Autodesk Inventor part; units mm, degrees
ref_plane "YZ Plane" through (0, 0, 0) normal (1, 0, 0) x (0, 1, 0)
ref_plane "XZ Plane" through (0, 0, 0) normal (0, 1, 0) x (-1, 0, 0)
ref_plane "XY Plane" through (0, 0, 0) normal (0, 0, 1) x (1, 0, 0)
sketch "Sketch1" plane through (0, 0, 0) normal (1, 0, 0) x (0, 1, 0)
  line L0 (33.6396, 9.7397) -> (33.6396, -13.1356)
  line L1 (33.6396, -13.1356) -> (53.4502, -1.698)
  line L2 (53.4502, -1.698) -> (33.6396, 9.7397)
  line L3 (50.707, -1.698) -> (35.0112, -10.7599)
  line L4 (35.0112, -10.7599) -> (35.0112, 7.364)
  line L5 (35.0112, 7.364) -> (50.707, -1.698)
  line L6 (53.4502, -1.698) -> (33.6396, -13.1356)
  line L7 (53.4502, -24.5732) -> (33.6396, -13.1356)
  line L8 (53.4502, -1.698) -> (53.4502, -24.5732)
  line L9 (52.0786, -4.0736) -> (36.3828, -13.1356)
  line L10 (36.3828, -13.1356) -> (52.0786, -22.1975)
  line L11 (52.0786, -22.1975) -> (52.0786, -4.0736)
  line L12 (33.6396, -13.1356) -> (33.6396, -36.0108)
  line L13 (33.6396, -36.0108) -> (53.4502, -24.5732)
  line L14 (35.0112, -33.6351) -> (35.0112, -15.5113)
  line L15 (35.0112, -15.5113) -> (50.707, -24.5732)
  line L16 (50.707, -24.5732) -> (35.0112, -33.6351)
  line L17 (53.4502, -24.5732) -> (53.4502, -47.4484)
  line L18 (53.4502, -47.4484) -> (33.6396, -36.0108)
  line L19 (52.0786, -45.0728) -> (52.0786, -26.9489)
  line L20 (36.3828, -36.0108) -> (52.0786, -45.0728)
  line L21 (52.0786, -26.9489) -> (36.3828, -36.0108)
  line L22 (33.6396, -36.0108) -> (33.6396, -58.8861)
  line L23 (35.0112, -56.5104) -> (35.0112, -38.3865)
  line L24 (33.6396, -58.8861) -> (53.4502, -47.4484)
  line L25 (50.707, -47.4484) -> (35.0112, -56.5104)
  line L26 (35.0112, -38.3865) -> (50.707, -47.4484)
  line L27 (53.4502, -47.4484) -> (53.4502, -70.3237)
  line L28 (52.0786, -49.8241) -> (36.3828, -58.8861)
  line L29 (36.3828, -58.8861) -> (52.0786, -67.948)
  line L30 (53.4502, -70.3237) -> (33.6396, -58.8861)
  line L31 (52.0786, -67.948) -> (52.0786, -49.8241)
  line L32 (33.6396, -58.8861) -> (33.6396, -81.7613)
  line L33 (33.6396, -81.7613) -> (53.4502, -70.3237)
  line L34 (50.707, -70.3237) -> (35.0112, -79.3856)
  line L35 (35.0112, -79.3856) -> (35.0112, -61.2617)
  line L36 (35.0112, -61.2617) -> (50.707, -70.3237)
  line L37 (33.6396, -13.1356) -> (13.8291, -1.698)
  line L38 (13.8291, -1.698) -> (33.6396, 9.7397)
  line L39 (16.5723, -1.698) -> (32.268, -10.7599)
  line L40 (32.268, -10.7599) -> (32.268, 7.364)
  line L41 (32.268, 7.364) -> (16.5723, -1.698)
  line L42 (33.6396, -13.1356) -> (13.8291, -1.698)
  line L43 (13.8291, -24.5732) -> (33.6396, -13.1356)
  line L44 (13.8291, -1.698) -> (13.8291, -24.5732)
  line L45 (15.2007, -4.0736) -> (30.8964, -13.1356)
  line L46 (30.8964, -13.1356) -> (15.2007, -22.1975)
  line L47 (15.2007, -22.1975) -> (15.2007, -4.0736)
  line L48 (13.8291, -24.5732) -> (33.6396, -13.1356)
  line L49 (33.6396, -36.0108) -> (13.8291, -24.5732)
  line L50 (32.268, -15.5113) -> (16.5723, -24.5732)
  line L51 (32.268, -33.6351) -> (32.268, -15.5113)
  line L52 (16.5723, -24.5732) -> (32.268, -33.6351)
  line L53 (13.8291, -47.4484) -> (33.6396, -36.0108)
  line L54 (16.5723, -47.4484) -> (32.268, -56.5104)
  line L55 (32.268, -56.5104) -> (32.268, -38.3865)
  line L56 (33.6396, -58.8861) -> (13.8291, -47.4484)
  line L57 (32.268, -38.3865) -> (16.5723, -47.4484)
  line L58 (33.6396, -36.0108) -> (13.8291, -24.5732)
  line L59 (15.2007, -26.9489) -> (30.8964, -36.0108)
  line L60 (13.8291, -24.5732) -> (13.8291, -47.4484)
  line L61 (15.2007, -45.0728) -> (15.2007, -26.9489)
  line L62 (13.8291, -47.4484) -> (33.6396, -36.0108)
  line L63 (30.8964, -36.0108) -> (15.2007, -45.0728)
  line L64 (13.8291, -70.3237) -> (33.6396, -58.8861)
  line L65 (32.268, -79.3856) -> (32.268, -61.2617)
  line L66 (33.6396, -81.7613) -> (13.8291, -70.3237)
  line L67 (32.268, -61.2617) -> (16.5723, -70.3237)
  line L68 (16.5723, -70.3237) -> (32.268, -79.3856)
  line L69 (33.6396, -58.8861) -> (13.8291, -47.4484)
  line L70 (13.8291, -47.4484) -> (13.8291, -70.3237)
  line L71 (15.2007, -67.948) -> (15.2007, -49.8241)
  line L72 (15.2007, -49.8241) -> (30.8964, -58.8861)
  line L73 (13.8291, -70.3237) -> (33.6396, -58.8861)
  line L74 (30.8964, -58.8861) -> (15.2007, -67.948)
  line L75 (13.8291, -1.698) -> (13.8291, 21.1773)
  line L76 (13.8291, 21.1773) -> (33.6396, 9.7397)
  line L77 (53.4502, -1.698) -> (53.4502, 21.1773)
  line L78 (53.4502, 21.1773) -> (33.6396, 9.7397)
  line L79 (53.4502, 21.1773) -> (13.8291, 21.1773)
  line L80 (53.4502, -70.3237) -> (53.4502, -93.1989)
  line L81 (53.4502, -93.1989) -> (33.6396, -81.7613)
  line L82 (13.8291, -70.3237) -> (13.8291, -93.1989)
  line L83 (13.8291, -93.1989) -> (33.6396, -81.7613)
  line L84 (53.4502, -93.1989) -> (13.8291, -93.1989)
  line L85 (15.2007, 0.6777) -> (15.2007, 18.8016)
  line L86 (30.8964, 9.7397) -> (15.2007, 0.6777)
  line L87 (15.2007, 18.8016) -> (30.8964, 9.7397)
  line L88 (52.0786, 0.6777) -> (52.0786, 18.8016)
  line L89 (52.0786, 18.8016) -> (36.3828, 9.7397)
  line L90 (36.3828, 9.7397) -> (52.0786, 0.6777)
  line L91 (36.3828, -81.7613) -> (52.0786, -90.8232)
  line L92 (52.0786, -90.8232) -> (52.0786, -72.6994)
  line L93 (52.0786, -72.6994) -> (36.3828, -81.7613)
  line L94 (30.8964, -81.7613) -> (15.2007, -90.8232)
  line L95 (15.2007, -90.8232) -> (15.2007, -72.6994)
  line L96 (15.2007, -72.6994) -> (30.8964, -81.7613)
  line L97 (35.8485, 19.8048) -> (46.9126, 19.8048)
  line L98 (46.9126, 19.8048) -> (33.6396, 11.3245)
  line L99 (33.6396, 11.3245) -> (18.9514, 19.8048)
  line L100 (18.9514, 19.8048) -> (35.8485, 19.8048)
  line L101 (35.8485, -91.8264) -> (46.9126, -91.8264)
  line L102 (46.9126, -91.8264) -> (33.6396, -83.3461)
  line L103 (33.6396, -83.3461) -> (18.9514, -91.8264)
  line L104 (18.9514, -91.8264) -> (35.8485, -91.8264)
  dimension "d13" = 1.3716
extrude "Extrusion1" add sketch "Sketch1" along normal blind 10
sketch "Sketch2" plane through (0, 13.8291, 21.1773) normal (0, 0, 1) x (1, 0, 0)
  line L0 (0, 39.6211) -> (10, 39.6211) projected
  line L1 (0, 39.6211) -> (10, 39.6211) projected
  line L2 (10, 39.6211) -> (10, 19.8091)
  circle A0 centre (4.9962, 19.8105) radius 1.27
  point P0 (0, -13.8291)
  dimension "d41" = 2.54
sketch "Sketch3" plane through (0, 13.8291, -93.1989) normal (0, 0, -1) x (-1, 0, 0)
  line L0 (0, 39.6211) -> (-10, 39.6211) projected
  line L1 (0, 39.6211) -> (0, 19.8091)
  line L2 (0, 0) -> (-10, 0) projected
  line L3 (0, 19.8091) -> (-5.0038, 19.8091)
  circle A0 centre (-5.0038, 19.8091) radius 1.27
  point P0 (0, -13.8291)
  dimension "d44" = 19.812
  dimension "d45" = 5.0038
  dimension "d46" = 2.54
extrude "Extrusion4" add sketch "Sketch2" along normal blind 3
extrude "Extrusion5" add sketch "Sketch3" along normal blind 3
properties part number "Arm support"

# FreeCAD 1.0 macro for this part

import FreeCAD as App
import Part
import Sketcher
from FreeCAD import Vector
Q = App.Units.Quantity

doc = App.newDocument("Part")
body = doc.addObject("PartDesign::Body", "Body")

# Sketch on YZ plane
sketch1 = body.newObject("Sketcher::SketchObject", "Sketch")
sketch1.AttachmentSupport = (doc.getObject("YZ_Plane"), [""])
sketch1.MapMode = "FlatFace"
sketch1.addGeometry([
    Part.LineSegment(Vector(53, 21, 0), Vector(14, 21, 0)),  # 0
    Part.LineSegment(Vector(14, 21, 0), Vector(14, -93, 0)),  # 1
    Part.LineSegment(Vector(14, -93, 0), Vector(53, -93, 0)),  # 2
    Part.LineSegment(Vector(53, -93, 0), Vector(53, 21, 0)),  # 3
    Part.LineSegment(Vector(35, 7, 0), Vector(51, -2, 0)),  # 4
    Part.LineSegment(Vector(51, -2, 0), Vector(35, -11, 0)),  # 5
    Part.LineSegment(Vector(35, -11, 0), Vector(35, 7, 0)),  # 6
    Part.LineSegment(Vector(52, 1, 0), Vector(36, 10, 0)),  # 7
    Part.LineSegment(Vector(36, 10, 0), Vector(52, 19, 0)),  # 8
    Part.LineSegment(Vector(52, 19, 0), Vector(52, 1, 0)),  # 9
    Part.LineSegment(Vector(52, -4, 0), Vector(52, -22, 0)),  # 10
    Part.LineSegment(Vector(52, -22, 0), Vector(36, -13, 0)),  # 11
    Part.LineSegment(Vector(36, -13, 0), Vector(52, -4, 0)),  # 12
    Part.LineSegment(Vector(17, -2, 0), Vector(32, 7, 0)),  # 13
    Part.LineSegment(Vector(32, 7, 0), Vector(32, -11, 0)),  # 14
    Part.LineSegment(Vector(32, -11, 0), Vector(17, -2, 0)),  # 15
    Part.LineSegment(Vector(47, 20, 0), Vector(34, 11, 0)),  # 16
    Part.LineSegment(Vector(34, 11, 0), Vector(19, 20, 0)),  # 17
    Part.LineSegment(Vector(19, 20, 0), Vector(47, 20, 0)),  # 18
    Part.LineSegment(Vector(35, -34, 0), Vector(35, -16, 0)),  # 19
    Part.LineSegment(Vector(35, -16, 0), Vector(51, -25, 0)),  # 20
    Part.LineSegment(Vector(51, -25, 0), Vector(35, -34, 0)),  # 21
    Part.LineSegment(Vector(15, -4, 0), Vector(31, -13, 0)),  # 22
    Part.LineSegment(Vector(31, -13, 0), Vector(15, -22, 0)),  # 23
    Part.LineSegment(Vector(15, -22, 0), Vector(15, -4, 0)),  # 24
    Part.LineSegment(Vector(15, 1, 0), Vector(15, 19, 0)),  # 25
    Part.LineSegment(Vector(15, 19, 0), Vector(31, 10, 0)),  # 26
    Part.LineSegment(Vector(31, 10, 0), Vector(15, 1, 0)),  # 27
    Part.LineSegment(Vector(52, -45, 0), Vector(36, -36, 0)),  # 28
    Part.LineSegment(Vector(36, -36, 0), Vector(52, -27, 0)),  # 29
    Part.LineSegment(Vector(52, -27, 0), Vector(52, -45, 0)),  # 30
    Part.LineSegment(Vector(32, -16, 0), Vector(32, -34, 0)),  # 31
    Part.LineSegment(Vector(32, -34, 0), Vector(17, -25, 0)),  # 32
    Part.LineSegment(Vector(17, -25, 0), Vector(32, -16, 0)),  # 33
    Part.LineSegment(Vector(35, -57, 0), Vector(35, -38, 0)),  # 34
    Part.LineSegment(Vector(35, -38, 0), Vector(51, -47, 0)),  # 35
    Part.LineSegment(Vector(51, -47, 0), Vector(35, -57, 0)),  # 36
    Part.LineSegment(Vector(15, -27, 0), Vector(31, -36, 0)),  # 37
    Part.LineSegment(Vector(31, -36, 0), Vector(15, -45, 0)),  # 38
    Part.LineSegment(Vector(15, -45, 0), Vector(15, -27, 0)),  # 39
    Part.LineSegment(Vector(52, -50, 0), Vector(52, -68, 0)),  # 40
    Part.LineSegment(Vector(52, -68, 0), Vector(36, -59, 0)),  # 41
    Part.LineSegment(Vector(36, -59, 0), Vector(52, -50, 0)),  # 42
    Part.LineSegment(Vector(17, -47, 0), Vector(32, -38, 0)),  # 43
    Part.LineSegment(Vector(32, -38, 0), Vector(32, -57, 0)),  # 44
    Part.LineSegment(Vector(32, -57, 0), Vector(17, -47, 0)),  # 45
    Part.LineSegment(Vector(51, -70, 0), Vector(35, -79, 0)),  # 46
    Part.LineSegment(Vector(35, -79, 0), Vector(35, -61, 0)),  # 47
    Part.LineSegment(Vector(35, -61, 0), Vector(51, -70, 0)),  # 48
    Part.LineSegment(Vector(15, -68, 0), Vector(15, -50, 0)),  # 49
    Part.LineSegment(Vector(15, -50, 0), Vector(31, -59, 0)),  # 50
    Part.LineSegment(Vector(31, -59, 0), Vector(15, -68, 0)),  # 51
    Part.LineSegment(Vector(36, -82, 0), Vector(52, -73, 0)),  # 52
    Part.LineSegment(Vector(52, -73, 0), Vector(52, -91, 0)),  # 53
    Part.LineSegment(Vector(52, -91, 0), Vector(36, -82, 0)),  # 54
    Part.LineSegment(Vector(32, -79, 0), Vector(17, -70, 0)),  # 55
    Part.LineSegment(Vector(17, -70, 0), Vector(32, -61, 0)),  # 56
    Part.LineSegment(Vector(32, -61, 0), Vector(32, -79, 0)),  # 57
    Part.LineSegment(Vector(19, -92, 0), Vector(34, -83, 0)),  # 58
    Part.LineSegment(Vector(34, -83, 0), Vector(47, -92, 0)),  # 59
    Part.LineSegment(Vector(47, -92, 0), Vector(19, -92, 0)),  # 60
    Part.LineSegment(Vector(15, -91, 0), Vector(15, -73, 0)),  # 61
    Part.LineSegment(Vector(15, -73, 0), Vector(31, -82, 0)),  # 62
    Part.LineSegment(Vector(31, -82, 0), Vector(15, -91, 0)),  # 63
], False)
sketch1.addConstraint([
    Sketcher.Constraint("Coincident", 0, 2, 1, 1),
    Sketcher.Constraint("Coincident", 1, 2, 2, 1),
    Sketcher.Constraint("Coincident", 2, 2, 3, 1),
    Sketcher.Constraint("Coincident", 3, 2, 0, 1),
    Sketcher.Constraint("Coincident", 4, 2, 5, 1),
    Sketcher.Constraint("Coincident", 5, 2, 6, 1),
    Sketcher.Constraint("Coincident", 6, 2, 4, 1),
    Sketcher.Constraint("Coincident", 7, 2, 8, 1),
    Sketcher.Constraint("Coincident", 8, 2, 9, 1),
    Sketcher.Constraint("Coincident", 9, 2, 7, 1),
    Sketcher.Constraint("Coincident", 10, 2, 11, 1),
    Sketcher.Constraint("Coincident", 11, 2, 12, 1),
    Sketcher.Constraint("Coincident", 12, 2, 10, 1),
    Sketcher.Constraint("Coincident", 13, 2, 14, 1),
    Sketcher.Constraint("Coincident", 14, 2, 15, 1),
    Sketcher.Constraint("Coincident", 15, 2, 13, 1),
    Sketcher.Constraint("Coincident", 16, 2, 17, 1),
    Sketcher.Constraint("Coincident", 17, 2, 18, 1),
    Sketcher.Constraint("Coincident", 18, 2, 16, 1),
    Sketcher.Constraint("Coincident", 19, 2, 20, 1),
    Sketcher.Constraint("Coincident", 20, 2, 21, 1),
    Sketcher.Constraint("Coincident", 21, 2, 19, 1),
    Sketcher.Constraint("Coincident", 22, 2, 23, 1),
    Sketcher.Constraint("Coincident", 23, 2, 24, 1),
    Sketcher.Constraint("Coincident", 24, 2, 22, 1),
    Sketcher.Constraint("Coincident", 25, 2, 26, 1),
    Sketcher.Constraint("Coincident", 26, 2, 27, 1),
    Sketcher.Constraint("Coincident", 27, 2, 25, 1),
    Sketcher.Constraint("Coincident", 28, 2, 29, 1),
    Sketcher.Constraint("Coincident", 29, 2, 30, 1),
    Sketcher.Constraint("Coincident", 30, 2, 28, 1),
    Sketcher.Constraint("Coincident", 31, 2, 32, 1),
    Sketcher.Constraint("Coincident", 32, 2, 33, 1),
    Sketcher.Constraint("Coincident", 33, 2, 31, 1),
    Sketcher.Constraint("Coincident", 34, 2, 35, 1),
    Sketcher.Constraint("Coincident", 35, 2, 36, 1),
    Sketcher.Constraint("Coincident", 36, 2, 34, 1),
    Sketcher.Constraint("Coincident", 37, 2, 38, 1),
    Sketcher.Constraint("Coincident", 38, 2, 39, 1),
    Sketcher.Constraint("Coincident", 39, 2, 37, 1),
    Sketcher.Constraint("Coincident", 40, 2, 41, 1),
    Sketcher.Constraint("Coincident", 41, 2, 42, 1),
    Sketcher.Constraint("Coincident", 42, 2, 40, 1),
    Sketcher.Constraint("Coincident", 43, 2, 44, 1),
    Sketcher.Constraint("Coincident", 44, 2, 45, 1),
    Sketcher.Constraint("Coincident", 45, 2, 43, 1),
    Sketcher.Constraint("Coincident", 46, 2, 47, 1),
    Sketcher.Constraint("Coincident", 47, 2, 48, 1),
    Sketcher.Constraint("Coincident", 48, 2, 46, 1),
    Sketcher.Constraint("Coincident", 49, 2, 50, 1),
    Sketcher.Constraint("Coincident", 50, 2, 51, 1),
    Sketcher.Constraint("Coincident", 51, 2, 49, 1),
    Sketcher.Constraint("Coincident", 52, 2, 53, 1),
    Sketcher.Constraint("Coincident", 53, 2, 54, 1),
    Sketcher.Constraint("Coincident", 54, 2, 52, 1),
    Sketcher.Constraint("Coincident", 55, 2, 56, 1),
    Sketcher.Constraint("Coincident", 56, 2, 57, 1),
    Sketcher.Constraint("Coincident", 57, 2, 55, 1),
    Sketcher.Constraint("Coincident", 58, 2, 59, 1),
    Sketcher.Constraint("Coincident", 59, 2, 60, 1),
    Sketcher.Constraint("Coincident", 60, 2, 58, 1),
    Sketcher.Constraint("Coincident", 61, 2, 62, 1),
    Sketcher.Constraint("Coincident", 62, 2, 63, 1),
    Sketcher.Constraint("Coincident", 63, 2, 61, 1),
    Sketcher.Constraint("Horizontal", 0),
    Sketcher.Constraint("Vertical", 1),
    Sketcher.Constraint("Horizontal", 2),
    Sketcher.Constraint("Vertical", 3),
    Sketcher.Constraint("Vertical", 6),
    Sketcher.Constraint("Vertical", 9),
    Sketcher.Constraint("Vertical", 10),
    Sketcher.Constraint("Vertical", 14),
    Sketcher.Constraint("Horizontal", 18),
    Sketcher.Constraint("Vertical", 19),
    Sketcher.Constraint("Vertical", 24),
    Sketcher.Constraint("Vertical", 25),
    Sketcher.Constraint("Vertical", 30),
    Sketcher.Constraint("Vertical", 31),
    Sketcher.Constraint("Vertical", 34),
    Sketcher.Constraint("Vertical", 39),
    Sketcher.Constraint("Vertical", 40),
    Sketcher.Constraint("Vertical", 44),
    Sketcher.Constraint("Vertical", 47),
    Sketcher.Constraint("Vertical", 49),
    Sketcher.Constraint("Vertical", 53),
    Sketcher.Constraint("Vertical", 57),
    Sketcher.Constraint("Horizontal", 60),
    Sketcher.Constraint("Vertical", 61),
    Sketcher.Constraint("Parallel", 4, 7),
    Sketcher.Constraint("Parallel", 5, 8),
    Sketcher.Constraint("Parallel", 7, 11),
    Sketcher.Constraint("Parallel", 8, 12),
    Sketcher.Constraint("Parallel", 12, 13),
    Sketcher.Constraint("Parallel", 11, 15),
    Sketcher.Constraint("Parallel", 15, 17),
    Sketcher.Constraint("Parallel", 17, 20),
    Sketcher.Constraint("Parallel", 13, 21),
    Sketcher.Constraint("Parallel", 20, 22),
    Sketcher.Constraint("Parallel", 21, 23),
    Sketcher.Constraint("Parallel", 22, 26),
    Sketcher.Constraint("Parallel", 23, 27),
    Sketcher.Constraint("Parallel", 26, 28),
    Sketcher.Constraint("Parallel", 27, 29),
    Sketcher.Constraint("Parallel", 28, 32),
    Sketcher.Constraint("Parallel", 29, 33),
    Sketcher.Constraint("Parallel", 32, 35),
    Sketcher.Constraint("Parallel", 33, 36),
    Sketcher.Constraint("Parallel", 35, 37),
    Sketcher.Constraint("Parallel", 36, 38),
    Sketcher.Constraint("Parallel", 37, 41),
    Sketcher.Constraint("Parallel", 38, 42),
    Sketcher.Constraint("Parallel", 42, 43),
    Sketcher.Constraint("Parallel", 41, 45),
    Sketcher.Constraint("Parallel", 43, 46),
    Sketcher.Constraint("Parallel", 45, 48),
    Sketcher.Constraint("Parallel", 48, 50),
    Sketcher.Constraint("Parallel", 46, 51),
    Sketcher.Constraint("Parallel", 51, 52),
    Sketcher.Constraint("Parallel", 50, 54),
    Sketcher.Constraint("Parallel", 54, 55),
    Sketcher.Constraint("Parallel", 52, 56),
    Sketcher.Constraint("Parallel", 56, 58),
    Sketcher.Constraint("Parallel", 55, 62),
    Sketcher.Constraint("Parallel", 58, 63),
    Sketcher.Constraint("Horizontal", 6, 2, 13, 2),
    Sketcher.Constraint("Horizontal", 5, 2, 14, 2),
    Sketcher.Constraint("Horizontal", 4, 2, 15, 2),
    Sketcher.Constraint("Horizontal", 11, 2, 22, 2),
    Sketcher.Constraint("Horizontal", 10, 2, 23, 2),
    Sketcher.Constraint("Horizontal", 8, 2, 25, 2),
    Sketcher.Constraint("Horizontal", 7, 2, 26, 2),
    Sketcher.Constraint("Horizontal", 21, 2, 31, 2),
    Sketcher.Constraint("Horizontal", 20, 2, 32, 2),
    Sketcher.Constraint("Horizontal", 28, 2, 37, 2),
    Sketcher.Constraint("Horizontal", 30, 2, 38, 2),
    Sketcher.Constraint("Horizontal", 34, 2, 43, 2),
    Sketcher.Constraint("Horizontal", 36, 2, 44, 2),
    Sketcher.Constraint("Horizontal", 42, 2, 49, 2),
    Sketcher.Constraint("Horizontal", 41, 2, 50, 2),
    Sketcher.Constraint("Horizontal", 48, 2, 55, 2),
    Sketcher.Constraint("Horizontal", 47, 2, 56, 2),
    Sketcher.Constraint("Horizontal", 52, 2, 61, 2),
    Sketcher.Constraint("Horizontal", 54, 2, 62, 2),
    Sketcher.Constraint("Vertical", 9, 2, 10, 2),
    Sketcher.Constraint("Vertical", 7, 2, 11, 2),
    Sketcher.Constraint("Vertical", 6, 2, 19, 2),
    Sketcher.Constraint("Vertical", 4, 2, 20, 2),
    Sketcher.Constraint("Vertical", 24, 2, 25, 2),
    Sketcher.Constraint("Vertical", 11, 2, 28, 2),
    Sketcher.Constraint("Vertical", 12, 2, 29, 2),
    Sketcher.Constraint("Vertical", 14, 2, 31, 2),
    Sketcher.Constraint("Vertical", 21, 2, 34, 2),
    Sketcher.Constraint("Vertical", 20, 2, 35, 2),
    Sketcher.Constraint("Vertical", 26, 2, 37, 2),
    Sketcher.Constraint("Vertical", 30, 2, 40, 2),
    Sketcher.Constraint("Vertical", 28, 2, 41, 2),
    Sketcher.Constraint("Vertical", 33, 2, 43, 2),
    Sketcher.Constraint("Vertical", 36, 2, 46, 2),
    Sketcher.Constraint("Vertical", 35, 2, 48, 2),
    Sketcher.Constraint("Vertical", 39, 2, 49, 2),
    Sketcher.Constraint("Vertical", 42, 2, 52, 2),
    Sketcher.Constraint("Vertical", 41, 2, 54, 2),
    Sketcher.Constraint("Vertical", 45, 2, 55, 2),
    Sketcher.Constraint("Vertical", 16, 2, 58, 2),
    Sketcher.Constraint("Vertical", 18, 2, 59, 2),
    Sketcher.Constraint("Vertical", 17, 2, 60, 2),
    Sketcher.Constraint("Vertical", 51, 2, 61, 2),
    Sketcher.Constraint("Equal", 6, 9),
    Sketcher.Constraint("Angle", 4, Q("-30 deg")),
    Sketcher.Constraint("DistanceY", 1, 2, 1, 1, Q("4.503 in")),
    Sketcher.Constraint("Distance", 16, Q("0.6201 in")),
    Sketcher.Constraint("DistanceX", 0, 2, 0, 1, 39.621),
    Sketcher.Constraint("DistanceX", 18, 1, 18, 2, 27.9612),
    Sketcher.Constraint("DistanceY", 6, 1, 6, 2, 18.124),
    Sketcher.Constraint("DistanceX", -1, 1, 5, 2, Q("1.3784 in")),
    Sketcher.Constraint("DistanceX", -1, 1, 7, 2, Q("1.4324 in")),
    Sketcher.Constraint("DistanceX", -1, 1, 13, 2, Q("1.2704 in")),
    Sketcher.Constraint("DistanceX", -1, 1, 16, 2, Q("1.3244 in")),
    Sketcher.Constraint("DistanceX", -1, 1, 22, 2, Q("1.2164 in")),
    Sketcher.Constraint("DistanceX", -1, 1, 0, 2, 13.829),
    Sketcher.Constraint("DistanceY", -1, 1, 0, 2, 21.1773),
    Sketcher.Constraint("DistanceY", 4, 2, -1, 1, 1.698),
    Sketcher.Constraint("DistanceY", -1, 1, 7, 2, 9.7397),
    Sketcher.Constraint("DistanceY", 10, 2, -1, 1, 22.1975),
    Sketcher.Constraint("DistanceY", -1, 1, 16, 2, 11.3245),
    Sketcher.Constraint("DistanceY", 19, 2, -1, 1, 15.5113),
    Sketcher.Constraint("DistanceY", 28, 2, -1, 1, 36.0108),
    Sketcher.Constraint("DistanceY", 34, 2, -1, 1, 38.3865),
    Sketcher.Constraint("DistanceY", 40, 2, -1, 1, 67.948),
    Sketcher.Constraint("DistanceY", 46, 2, -1, 1, 79.3856),
    Sketcher.Constraint("DistanceY", 52, 2, -1, 1, 72.6994),
    Sketcher.Constraint("DistanceY", 58, 2, -1, 1, 83.346),
])
pad1 = body.newObject("PartDesign::Pad", "Pad")
pad1.Profile = sketch1
pad1.Length = Q("0.3937008 in")

# Sketch on XY plane
sketch2 = body.newObject("Sketcher::SketchObject", "Sketch001")
sketch2.AttachmentSupport = (doc.getObject("XY_Plane"), [""])
sketch2.MapMode = "FlatFace"
sketch2.AttachmentOffset = App.Placement(Vector(0, 0, 21.1773), App.Rotation())
sketch2.addGeometry(Part.Circle(Vector(5, 33.6, 0), Vector(0, 0, 1), 1.3), False)
sketch2.addConstraint([
    Sketcher.Constraint("Diameter", 0, Q("0.1 in")),
    Sketcher.Constraint("DistanceX", -1, 1, 0, 3, Q("0.1967 in")),
    Sketcher.Constraint("DistanceY", -1, 1, 0, 3, Q("1.3244 in")),
])
pad2 = body.newObject("PartDesign::Pad", "Pad001")
pad2.Profile = sketch2
pad2.Length = Q("0.1181102 in")

# Sketch on XY plane
sketch3 = body.newObject("Sketcher::SketchObject", "Sketch002")
sketch3.AttachmentSupport = (doc.getObject("XY_Plane"), [""])
sketch3.MapMode = "FlatFace"
sketch3.AttachmentOffset = App.Placement(Vector(0, 0, -93.1989), App.Rotation())
sketch3.addGeometry(Part.Circle(Vector(5, 33.6, 0), Vector(0, 0, 1), 1.3), False)
sketch3.addConstraint([
    Sketcher.Constraint("Diameter", 0, Q("0.1 in")),
    Sketcher.Constraint("DistanceX", -1, 1, 0, 3, Q("0.197 in")),
    Sketcher.Constraint("DistanceY", -1, 1, 0, 3, 33.6382),
])
pad3 = body.newObject("PartDesign::Pad", "Pad002")
pad3.Profile = sketch3
pad3.Length = Q("0.1181102 in")
pad3.Reversed = True

doc.recompute()
